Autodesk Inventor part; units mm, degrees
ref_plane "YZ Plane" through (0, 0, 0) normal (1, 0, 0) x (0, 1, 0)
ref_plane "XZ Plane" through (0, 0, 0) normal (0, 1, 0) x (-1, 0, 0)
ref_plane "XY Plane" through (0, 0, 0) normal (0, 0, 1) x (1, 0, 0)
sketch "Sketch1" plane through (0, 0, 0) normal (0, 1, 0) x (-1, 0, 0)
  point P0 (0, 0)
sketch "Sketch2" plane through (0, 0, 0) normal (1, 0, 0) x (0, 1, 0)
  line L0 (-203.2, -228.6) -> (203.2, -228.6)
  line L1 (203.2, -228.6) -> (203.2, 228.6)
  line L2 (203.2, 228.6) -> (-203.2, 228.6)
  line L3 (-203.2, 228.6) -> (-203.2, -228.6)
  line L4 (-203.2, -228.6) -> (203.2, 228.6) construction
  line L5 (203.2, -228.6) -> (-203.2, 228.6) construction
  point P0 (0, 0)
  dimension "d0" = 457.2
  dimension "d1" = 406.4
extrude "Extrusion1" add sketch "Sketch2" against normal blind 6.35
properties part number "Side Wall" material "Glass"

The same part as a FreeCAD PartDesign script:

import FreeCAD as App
import Part
import Sketcher
Q = App.Units.Quantity

doc = App.newDocument("Part")
body = doc.addObject("PartDesign::Body", "Body")

# Sketch on YZ plane
sketch1 = body.newObject("Sketcher::SketchObject", "Sketch")
sketch1.AttachmentSupport = (doc.getObject("YZ_Plane"), [""])
sketch1.MapMode = "FlatFace"
sketch1.addGeometry([
    Part.LineSegment(App.Vector(-203.2, 228.6, 0), App.Vector(-203.2, -228.6, 0)),
    Part.LineSegment(App.Vector(-203.2, -228.6, 0), App.Vector(203.2, -228.6, 0)),
    Part.LineSegment(App.Vector(203.2, -228.6, 0), App.Vector(203.2, 228.6, 0)),
    Part.LineSegment(App.Vector(203.2, 228.6, 0), App.Vector(-203.2, 228.6, 0)),
], False)
sketch1.addConstraint([
    Sketcher.Constraint("Coincident", 0, 2, 1, 1),
    Sketcher.Constraint("Coincident", 1, 2, 2, 1),
    Sketcher.Constraint("Coincident", 2, 2, 3, 1),
    Sketcher.Constraint("Coincident", 3, 2, 0, 1),
    Sketcher.Constraint("Vertical", 0),
    Sketcher.Constraint("Horizontal", 1),
    Sketcher.Constraint("Vertical", 2),
    Sketcher.Constraint("Horizontal", 3),
    Sketcher.Constraint("Symmetric", 0, 2, 2, 2, -1, 1),
    Sketcher.Constraint("DistanceX", 1, 1, 1, 2, Q("16 in")),
    Sketcher.Constraint("DistanceY", 0, 2, 0, 1, Q("18 in")),
])
pad1 = body.newObject("PartDesign::Pad", "Pad")
pad1.Profile = sketch1
pad1.Length = Q("0.25 in")
pad1.Reversed = True

doc.recompute()
